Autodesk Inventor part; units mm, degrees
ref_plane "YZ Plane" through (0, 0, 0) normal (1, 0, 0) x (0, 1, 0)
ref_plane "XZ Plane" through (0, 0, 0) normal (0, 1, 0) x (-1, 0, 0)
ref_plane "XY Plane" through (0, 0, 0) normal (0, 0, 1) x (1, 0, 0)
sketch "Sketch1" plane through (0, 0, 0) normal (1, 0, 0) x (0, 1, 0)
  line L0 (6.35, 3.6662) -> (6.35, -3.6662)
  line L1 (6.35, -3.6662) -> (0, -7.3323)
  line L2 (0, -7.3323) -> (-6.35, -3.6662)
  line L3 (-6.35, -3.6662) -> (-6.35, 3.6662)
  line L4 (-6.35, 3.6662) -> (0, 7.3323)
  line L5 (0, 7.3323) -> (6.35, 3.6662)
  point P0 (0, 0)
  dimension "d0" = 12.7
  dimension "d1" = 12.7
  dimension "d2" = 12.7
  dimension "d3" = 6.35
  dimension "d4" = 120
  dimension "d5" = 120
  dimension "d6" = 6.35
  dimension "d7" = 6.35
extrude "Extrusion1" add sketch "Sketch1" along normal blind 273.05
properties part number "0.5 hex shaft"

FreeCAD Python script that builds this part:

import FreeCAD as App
import Part
import Sketcher

V = App.Vector
Q = App.Units.Quantity

doc = App.newDocument("Part")
body = doc.addObject("PartDesign::Body", "Body")

sketch1 = doc.addObject("Sketcher::SketchObject", "Sketch")
body.addObject(sketch1)
sketch1.AttachmentSupport = (doc.YZ_Plane, [""])
sketch1.MapMode = "FlatFace"
sketch1.addGeometry([
    Part.LineSegment(V(6, -4, 0), V(6, 4, 0)),
    Part.LineSegment(V(6, 4, 0), V(0, 7, 0)),
    Part.LineSegment(V(0, 7, 0), V(-6, 4, 0)),
    Part.LineSegment(V(-6, 4, 0), V(-6, -4, 0)),
    Part.LineSegment(V(-6, -4, 0), V(0, -7, 0)),
    Part.LineSegment(V(0, -7, 0), V(6, -4, 0)),
], False)
sketch1.addConstraint([
    Sketcher.Constraint("Coincident", 0, 2, 1, 1),
    Sketcher.Constraint("Coincident", 1, 2, 2, 1),
    Sketcher.Constraint("Coincident", 2, 2, 3, 1),
    Sketcher.Constraint("Coincident", 3, 2, 4, 1),
    Sketcher.Constraint("Coincident", 4, 2, 5, 1),
    Sketcher.Constraint("Coincident", 5, 2, 0, 1),
    Sketcher.Constraint("Vertical", 0),
    Sketcher.Constraint("Vertical", 3),
    Sketcher.Constraint("Symmetric", 0, 2, 3, 2, -1, 1),
    Sketcher.Constraint("Symmetric", 1, 2, 4, 2, -1, 1),
    Sketcher.Constraint("PointOnObject", 1, 2, -2),
    Sketcher.Constraint("Parallel", 2, 5),
    Sketcher.Constraint("Horizontal", 0, 2, 2, 2),
    Sketcher.Constraint("DistanceX", 2, 2, 0, 2, Q("0.5 in")),
    Sketcher.Constraint("Angle", 1, Q("150.0005 deg")),
    Sketcher.Constraint("DistanceY", 3, 2, 1, 2, Q("0.433 in")),
])
pad1 = doc.addObject("PartDesign::Pad", "Pad")
body.addObject(pad1)
pad1.Profile = sketch1
pad1.Length = Q("10.75 in")

doc.recompute()
